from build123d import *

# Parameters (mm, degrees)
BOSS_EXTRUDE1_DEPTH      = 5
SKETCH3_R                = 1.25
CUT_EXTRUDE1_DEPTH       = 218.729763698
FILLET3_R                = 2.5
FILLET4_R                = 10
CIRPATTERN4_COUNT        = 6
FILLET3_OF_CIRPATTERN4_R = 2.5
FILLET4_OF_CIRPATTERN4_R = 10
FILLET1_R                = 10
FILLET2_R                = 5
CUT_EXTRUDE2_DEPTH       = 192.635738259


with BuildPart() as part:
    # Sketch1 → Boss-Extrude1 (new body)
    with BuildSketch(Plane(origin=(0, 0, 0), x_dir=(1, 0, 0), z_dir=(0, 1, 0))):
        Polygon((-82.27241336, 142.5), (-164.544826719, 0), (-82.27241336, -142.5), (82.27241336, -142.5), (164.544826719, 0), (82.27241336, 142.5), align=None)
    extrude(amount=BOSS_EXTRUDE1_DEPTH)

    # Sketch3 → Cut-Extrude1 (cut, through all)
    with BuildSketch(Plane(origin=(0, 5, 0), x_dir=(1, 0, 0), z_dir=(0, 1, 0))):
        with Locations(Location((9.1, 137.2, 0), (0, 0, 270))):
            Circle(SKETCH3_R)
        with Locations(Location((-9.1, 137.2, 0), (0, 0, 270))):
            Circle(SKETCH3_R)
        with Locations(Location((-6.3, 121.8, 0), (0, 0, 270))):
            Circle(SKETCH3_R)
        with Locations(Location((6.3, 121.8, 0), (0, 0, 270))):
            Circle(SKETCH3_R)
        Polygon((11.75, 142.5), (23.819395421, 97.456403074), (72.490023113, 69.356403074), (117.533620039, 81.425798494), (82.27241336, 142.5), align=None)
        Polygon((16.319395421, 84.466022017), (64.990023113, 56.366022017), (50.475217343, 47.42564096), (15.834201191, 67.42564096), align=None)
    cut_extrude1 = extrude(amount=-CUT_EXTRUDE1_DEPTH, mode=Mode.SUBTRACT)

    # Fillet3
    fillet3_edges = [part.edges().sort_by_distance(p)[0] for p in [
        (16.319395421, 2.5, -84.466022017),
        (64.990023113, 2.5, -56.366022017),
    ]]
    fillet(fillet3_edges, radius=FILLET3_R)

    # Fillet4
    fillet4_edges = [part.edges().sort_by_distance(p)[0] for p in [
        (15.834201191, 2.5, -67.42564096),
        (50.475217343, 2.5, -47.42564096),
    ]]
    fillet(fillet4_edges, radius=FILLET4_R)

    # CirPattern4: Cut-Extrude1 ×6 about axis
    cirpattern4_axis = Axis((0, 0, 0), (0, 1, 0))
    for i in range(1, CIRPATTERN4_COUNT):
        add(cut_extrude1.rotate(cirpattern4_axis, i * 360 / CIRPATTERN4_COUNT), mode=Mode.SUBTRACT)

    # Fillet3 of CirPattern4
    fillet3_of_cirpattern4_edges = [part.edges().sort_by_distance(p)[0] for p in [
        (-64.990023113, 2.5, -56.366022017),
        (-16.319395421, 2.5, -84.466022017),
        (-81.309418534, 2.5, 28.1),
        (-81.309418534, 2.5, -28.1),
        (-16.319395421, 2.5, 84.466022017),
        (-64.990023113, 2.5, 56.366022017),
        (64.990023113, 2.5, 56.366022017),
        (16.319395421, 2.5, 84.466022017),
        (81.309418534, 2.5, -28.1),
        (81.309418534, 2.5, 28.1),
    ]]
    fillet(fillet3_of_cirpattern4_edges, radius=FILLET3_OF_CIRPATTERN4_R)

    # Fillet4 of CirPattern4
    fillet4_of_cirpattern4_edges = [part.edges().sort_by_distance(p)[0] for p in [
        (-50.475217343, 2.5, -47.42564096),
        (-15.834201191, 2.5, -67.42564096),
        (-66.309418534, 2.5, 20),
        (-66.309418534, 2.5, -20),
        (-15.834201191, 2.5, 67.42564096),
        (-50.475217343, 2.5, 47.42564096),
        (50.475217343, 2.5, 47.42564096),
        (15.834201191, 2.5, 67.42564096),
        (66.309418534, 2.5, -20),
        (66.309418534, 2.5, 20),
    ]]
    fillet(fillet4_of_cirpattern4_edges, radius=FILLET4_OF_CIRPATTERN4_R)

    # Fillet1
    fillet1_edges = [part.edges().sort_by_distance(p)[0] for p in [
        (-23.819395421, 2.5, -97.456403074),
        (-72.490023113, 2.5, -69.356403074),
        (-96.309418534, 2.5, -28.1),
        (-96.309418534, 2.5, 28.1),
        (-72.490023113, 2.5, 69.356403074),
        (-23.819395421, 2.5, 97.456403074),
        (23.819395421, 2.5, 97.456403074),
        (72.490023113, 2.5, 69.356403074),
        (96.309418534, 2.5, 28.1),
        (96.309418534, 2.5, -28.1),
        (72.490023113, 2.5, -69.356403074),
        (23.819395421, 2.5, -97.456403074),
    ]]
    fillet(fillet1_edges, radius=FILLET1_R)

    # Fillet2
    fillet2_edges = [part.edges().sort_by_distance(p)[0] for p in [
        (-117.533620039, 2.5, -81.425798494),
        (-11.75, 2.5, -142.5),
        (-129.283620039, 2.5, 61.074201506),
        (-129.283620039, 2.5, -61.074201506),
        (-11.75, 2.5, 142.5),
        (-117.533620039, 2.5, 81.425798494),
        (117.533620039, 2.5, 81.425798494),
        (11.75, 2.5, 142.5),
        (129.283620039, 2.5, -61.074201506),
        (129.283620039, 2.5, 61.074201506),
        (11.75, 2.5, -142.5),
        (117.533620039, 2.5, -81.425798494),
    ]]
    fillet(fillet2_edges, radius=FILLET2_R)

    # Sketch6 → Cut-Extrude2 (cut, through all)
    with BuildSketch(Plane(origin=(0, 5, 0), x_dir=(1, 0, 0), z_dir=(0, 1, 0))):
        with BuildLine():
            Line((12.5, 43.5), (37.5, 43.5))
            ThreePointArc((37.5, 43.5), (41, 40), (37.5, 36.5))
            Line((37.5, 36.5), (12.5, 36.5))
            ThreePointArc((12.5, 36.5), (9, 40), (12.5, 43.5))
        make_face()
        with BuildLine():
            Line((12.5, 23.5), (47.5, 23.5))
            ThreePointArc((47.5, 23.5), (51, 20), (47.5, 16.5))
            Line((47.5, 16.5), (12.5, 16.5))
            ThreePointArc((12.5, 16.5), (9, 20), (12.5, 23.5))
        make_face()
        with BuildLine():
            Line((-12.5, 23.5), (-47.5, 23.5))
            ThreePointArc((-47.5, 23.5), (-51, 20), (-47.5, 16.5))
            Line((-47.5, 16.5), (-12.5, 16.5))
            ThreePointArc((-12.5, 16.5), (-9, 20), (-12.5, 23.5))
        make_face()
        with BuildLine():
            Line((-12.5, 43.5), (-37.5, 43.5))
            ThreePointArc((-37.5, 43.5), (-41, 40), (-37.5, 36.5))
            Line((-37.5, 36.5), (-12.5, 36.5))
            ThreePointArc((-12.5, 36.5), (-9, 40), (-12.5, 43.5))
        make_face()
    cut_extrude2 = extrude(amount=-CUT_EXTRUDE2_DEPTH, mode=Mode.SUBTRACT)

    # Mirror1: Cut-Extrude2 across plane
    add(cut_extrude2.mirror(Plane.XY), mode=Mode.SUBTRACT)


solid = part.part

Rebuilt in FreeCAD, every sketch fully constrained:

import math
import FreeCAD as App
import Part
import Sketcher
from FreeCAD import Vector
Q = App.Units.Quantity


def edges_at(feature, points):
    """Names of the edges that pass closest to the given points."""
    edges = feature.Shape.Edges
    near = lambda p: min(range(len(edges)), key=lambda i: edges[i].distToShape(Part.Vertex(*p))[0])
    return sorted({f"Edge{near(p) + 1}" for p in points})

doc = App.newDocument("Part")
body = doc.addObject("PartDesign::Body", "Body")

# Sketch on XZ plane
sketch1 = body.newObject("Sketcher::SketchObject", "Sketch")
sketch1.AttachmentSupport = (doc.getObject("XZ_Plane"), [""])
sketch1.MapMode = "FlatFace"
sketch1.addGeometry([
    Part.LineSegment(Vector(-82.272413, -142.5, 0), Vector(-164.544827, 0, 0)),  # 0
    Part.LineSegment(Vector(-164.544827, 0, 0), Vector(-82.272413, 142.5, 0)),  # 1
    Part.LineSegment(Vector(-82.272413, 142.5, 0), Vector(82.272413, 142.5, 0)),  # 2
    Part.LineSegment(Vector(82.272413, 142.5, 0), Vector(164.544827, 0, 0)),  # 3
    Part.LineSegment(Vector(164.544827, 0, 0), Vector(82.272413, -142.5, 0)),  # 4
    Part.LineSegment(Vector(82.272413, -142.5, 0), Vector(-82.272413, -142.5, 0)),  # 5
], False)
sketch1.addConstraint([
    Sketcher.Constraint("Coincident", 0, 2, 1, 1),
    Sketcher.Constraint("Coincident", 1, 2, 2, 1),
    Sketcher.Constraint("Coincident", 2, 2, 3, 1),
    Sketcher.Constraint("Coincident", 3, 2, 4, 1),
    Sketcher.Constraint("Coincident", 4, 2, 5, 1),
    Sketcher.Constraint("Coincident", 5, 2, 0, 1),
    Sketcher.Constraint("Horizontal", 2),
    Sketcher.Constraint("Horizontal", 5),
    Sketcher.Constraint("Symmetric", 0, 2, 3, 2, -1, 1),
    Sketcher.Constraint("Symmetric", 1, 2, 4, 2, -1, 1),
    Sketcher.Constraint("PointOnObject", 0, 2, -1),
    Sketcher.Constraint("Parallel", 0, 3),
    Sketcher.Constraint("Vertical", 2, 2, 4, 2),
    Sketcher.Constraint("Angle", 0, Q("120 deg")),
    Sketcher.Constraint("DistanceY", 4, 2, 2, 2, 285.0),
    Sketcher.Constraint("DistanceX", 2, 1, 2, 2, 164.544827),
])
pad1 = body.newObject("PartDesign::Pad", "Pad")
pad1.Profile = sketch1
pad1.Length = 5
pad1.Reversed = True

# Sketch on XZ plane
sketch2 = body.newObject("Sketcher::SketchObject", "Sketch001")
sketch2.AttachmentSupport = (doc.getObject("XZ_Plane"), [""])
sketch2.MapMode = "FlatFace"
sketch2.AttachmentOffset = App.Placement(Vector(0, 0, -5), App.Rotation())
sketch2.addGeometry([
    Part.Circle(Vector(9.1, -137.2, 0), Vector(0, 0, 1), 1.25),  # 0
    Part.Circle(Vector(-9.1, -137.2, 0), Vector(0, 0, 1), 1.25),  # 1
    Part.Circle(Vector(-6.3, -121.8, 0), Vector(0, 0, 1), 1.25),  # 2
    Part.Circle(Vector(6.3, -121.8, 0), Vector(0, 0, 1), 1.25),  # 3
    Part.LineSegment(Vector(11.75, -142.5, 0), Vector(23.819395, -97.456403, 0)),  # 4
    Part.LineSegment(Vector(23.819395, -97.456403, 0), Vector(72.490023, -69.356403, 0)),  # 5
    Part.LineSegment(Vector(72.490023, -69.356403, 0), Vector(117.53362, -81.425798, 0)),  # 6
    Part.LineSegment(Vector(117.53362, -81.425798, 0), Vector(82.272413, -142.5, 0)),  # 7
    Part.LineSegment(Vector(82.272413, -142.5, 0), Vector(11.75, -142.5, 0)),  # 8
    Part.LineSegment(Vector(64.990023, -56.366022, 0), Vector(16.319395, -84.466022, 0)),  # 9
    Part.LineSegment(Vector(16.319395, -84.466022, 0), Vector(15.834201, -67.425641, 0)),  # 10
    Part.LineSegment(Vector(15.834201, -67.425641, 0), Vector(50.475217, -47.425641, 0)),  # 11
    Part.LineSegment(Vector(50.475217, -47.425641, 0), Vector(64.990023, -56.366022, 0)),  # 12
], False)
sketch2.addConstraint([
    Sketcher.Constraint("Coincident", 4, 2, 5, 1),
    Sketcher.Constraint("Coincident", 5, 2, 6, 1),
    Sketcher.Constraint("Coincident", 6, 2, 7, 1),
    Sketcher.Constraint("Coincident", 7, 2, 8, 1),
    Sketcher.Constraint("Coincident", 8, 2, 4, 1),
    Sketcher.Constraint("Coincident", 9, 2, 10, 1),
    Sketcher.Constraint("Coincident", 10, 2, 11, 1),
    Sketcher.Constraint("Coincident", 11, 2, 12, 1),
    Sketcher.Constraint("Coincident", 12, 2, 9, 1),
    Sketcher.Constraint("Horizontal", 8),
    Sketcher.Constraint("Equal", 0, 1),
    Sketcher.Constraint("Equal", 1, 2),
    Sketcher.Constraint("Equal", 2, 3),
    Sketcher.Constraint("Symmetric", 0, 3, 1, 3, -2),
    Sketcher.Constraint("Symmetric", 2, 3, 3, 3, -2),
    Sketcher.Constraint("Perpendicular", 4, 6),
    Sketcher.Constraint("Parallel", 5, 9),
    Sketcher.Constraint("Parallel", 9, 11),
    Sketcher.Constraint("Equal", 4, 6),
    Sketcher.Constraint("Equal", 5, 9),
    Sketcher.Constraint("Equal", 10, 12),
    Sketcher.Constraint("Diameter", 0, 2.5),
    Sketcher.Constraint("Angle", 4, Q("75 deg")),
    Sketcher.Constraint("Angle", 5, Q("30 deg")),
    Sketcher.Constraint("Angle", 7, Q("-120 deg")),
    Sketcher.Constraint("Distance", 11, 40.0),
    Sketcher.Constraint("Distance", 5, 56.2),
    Sketcher.Constraint("DistanceX", -1, 1, 0, 3, 9.1),
    Sketcher.Constraint("DistanceY", 0, 3, -1, 1, 137.2),
    Sketcher.Constraint("DistanceX", 2, 3, -1, 1, 6.3),
    Sketcher.Constraint("DistanceY", 2, 3, -1, 1, 121.8),
    Sketcher.Constraint("DistanceY", 7, 2, -1, 1, 142.5),
    Sketcher.Constraint("DistanceX", 9, 2, 4, 2, 7.5),
    Sketcher.Constraint("DistanceX", -1, 1, 8, 2, 11.75),
    Sketcher.Constraint("DistanceY", 6, 2, -1, 1, 81.425798),
    Sketcher.Constraint("DistanceX", -1, 1, 10, 2, 15.834201),
    Sketcher.Constraint("DistanceY", 10, 2, -1, 1, 67.425641),
])
pocket1 = body.newObject("PartDesign::Pocket", "Pocket")
pocket1.Profile = sketch2
pocket1.Type = "ThroughAll"
pocket1.Reversed = True
doc.recompute()

fillet = body.newObject("PartDesign::Fillet", "Fillet")
fillet.Base = (pocket1, edges_at(pocket1, [(16.319, 2.5, -84.466), (64.99, 2.5, -56.366)]))
fillet.Radius = 2.5
doc.recompute()

fillet2 = body.newObject("PartDesign::Fillet", "Fillet001")
fillet2.Base = (fillet, edges_at(fillet, [(15.834, 2.5, -67.426), (50.475, 2.5, -47.426)]))
fillet2.Radius = 10
doc.recompute()

polarpattern = body.newObject("PartDesign::PolarPattern", "PolarPattern")
polarpattern.Originals = [pocket1]
polarpattern.Axis = (doc.getObject("Y_Axis"), [""])
polarpattern.Angle = 360
polarpattern.Occurrences = 6
body.Tip = polarpattern
doc.recompute()

fillet3 = body.newObject("PartDesign::Fillet", "Fillet002")
fillet3.Base = (polarpattern, edges_at(polarpattern, [
    (-64.99, 2.5, -56.366),
    (-16.319, 2.5, -84.466),
    (-81.309, 2.5, 28.1),
    (-81.309, 2.5, -28.1),
    (-16.319, 2.5, 84.466),
    (-64.99, 2.5, 56.366),
    (64.99, 2.5, 56.366),
    (16.319, 2.5, 84.466),
    (81.309, 2.5, -28.1),
    (81.309, 2.5, 28.1),
]))
fillet3.Radius = 2.5
doc.recompute()

fillet4 = body.newObject("PartDesign::Fillet", "Fillet003")
fillet4.Base = (fillet3, edges_at(fillet3, [
    (-50.475, 2.5, -47.426),
    (-15.834, 2.5, -67.426),
    (-66.309, 2.5, 20),
    (-66.309, 2.5, -20),
    (-15.834, 2.5, 67.426),
    (-50.475, 2.5, 47.426),
    (50.475, 2.5, 47.426),
    (15.834, 2.5, 67.426),
    (66.309, 2.5, -20),
    (66.309, 2.5, 20),
]))
fillet4.Radius = 10
doc.recompute()

fillet5 = body.newObject("PartDesign::Fillet", "Fillet004")
fillet5.Base = (fillet4, edges_at(fillet4, [
    (-23.819, 2.5, -97.456),
    (-72.49, 2.5, -69.356),
    (-96.309, 2.5, -28.1),
    (-96.309, 2.5, 28.1),
    (-72.49, 2.5, 69.356),
    (-23.819, 2.5, 97.456),
    (23.819, 2.5, 97.456),
    (72.49, 2.5, 69.356),
    (96.309, 2.5, 28.1),
    (96.309, 2.5, -28.1),
    (72.49, 2.5, -69.356),
    (23.819, 2.5, -97.456),
]))
fillet5.Radius = 10
doc.recompute()

fillet6 = body.newObject("PartDesign::Fillet", "Fillet005")
fillet6.Base = (fillet5, edges_at(fillet5, [
    (-117.534, 2.5, -81.426),
    (-11.75, 2.5, -142.5),
    (-129.284, 2.5, 61.074),
    (-129.284, 2.5, -61.074),
    (-11.75, 2.5, 142.5),
    (-117.534, 2.5, 81.426),
    (117.534, 2.5, 81.426),
    (11.75, 2.5, 142.5),
    (129.284, 2.5, -61.074),
    (129.284, 2.5, 61.074),
    (11.75, 2.5, -142.5),
    (117.534, 2.5, -81.426),
]))
fillet6.Radius = 5

# Sketch on XZ plane
sketch3 = body.newObject("Sketcher::SketchObject", "Sketch002")
sketch3.AttachmentSupport = (doc.getObject("XZ_Plane"), [""])
sketch3.MapMode = "FlatFace"
sketch3.AttachmentOffset = App.Placement(Vector(0, 0, -5), App.Rotation())
sketch3.addGeometry([
    Part.LineSegment(Vector(37.5, -43.5, 0), Vector(12.5, -43.5, 0)),  # 0
    Part.ArcOfCircle(Part.Circle(Vector(12.5, -40, 0), Vector(0, 0, 1), 3.5), math.radians(90), math.radians(270)),  # 1
    Part.LineSegment(Vector(12.5, -36.5, 0), Vector(37.5, -36.5, 0)),  # 2
    Part.ArcOfCircle(Part.Circle(Vector(37.5, -40, 0), Vector(0, 0, 1), 3.5), math.radians(-90), math.radians(90)),  # 3
    Part.LineSegment(Vector(47.5, -23.5, 0), Vector(12.5, -23.5, 0)),  # 4
    Part.ArcOfCircle(Part.Circle(Vector(12.5, -20, 0), Vector(0, 0, 1), 3.5), math.radians(90), math.radians(270)),  # 5
    Part.LineSegment(Vector(12.5, -16.5, 0), Vector(47.5, -16.5, 0)),  # 6
    Part.ArcOfCircle(Part.Circle(Vector(47.5, -20, 0), Vector(0, 0, 1), 3.5), math.radians(-90), math.radians(90)),  # 7
    Part.LineSegment(Vector(-12.5, -23.5, 0), Vector(-47.5, -23.5, 0)),  # 8
    Part.ArcOfCircle(Part.Circle(Vector(-47.5, -20, 0), Vector(0, 0, 1), 3.5), math.radians(90), math.radians(270)),  # 9
    Part.LineSegment(Vector(-47.5, -16.5, 0), Vector(-12.5, -16.5, 0)),  # 10
    Part.ArcOfCircle(Part.Circle(Vector(-12.5, -20, 0), Vector(0, 0, 1), 3.5), math.radians(-90), math.radians(90)),  # 11
    Part.LineSegment(Vector(-12.5, -43.5, 0), Vector(-37.5, -43.5, 0)),  # 12
    Part.ArcOfCircle(Part.Circle(Vector(-37.5, -40, 0), Vector(0, 0, 1), 3.5), math.radians(90), math.radians(270)),  # 13
    Part.LineSegment(Vector(-37.5, -36.5, 0), Vector(-12.5, -36.5, 0)),  # 14
    Part.ArcOfCircle(Part.Circle(Vector(-12.5, -40, 0), Vector(0, 0, 1), 3.5), math.radians(-90), math.radians(90)),  # 15
], False)
sketch3.addConstraint([
    Sketcher.Constraint("Tangent", 0, 2, 1, 2),
    Sketcher.Constraint("Tangent", 1, 1, 2, 1),
    Sketcher.Constraint("Tangent", 2, 2, 3, 2),
    Sketcher.Constraint("Tangent", 3, 1, 0, 1),
    Sketcher.Constraint("Tangent", 4, 2, 5, 2),
    Sketcher.Constraint("Tangent", 5, 1, 6, 1),
    Sketcher.Constraint("Tangent", 6, 2, 7, 2),
    Sketcher.Constraint("Tangent", 7, 1, 4, 1),
    Sketcher.Constraint("Tangent", 8, 2, 9, 2),
    Sketcher.Constraint("Tangent", 9, 1, 10, 1),
    Sketcher.Constraint("Tangent", 10, 2, 11, 2),
    Sketcher.Constraint("Tangent", 11, 1, 8, 1),
    Sketcher.Constraint("Tangent", 12, 2, 13, 2),
    Sketcher.Constraint("Tangent", 13, 1, 14, 1),
    Sketcher.Constraint("Tangent", 14, 2, 15, 2),
    Sketcher.Constraint("Tangent", 15, 1, 12, 1),
    Sketcher.Constraint("Horizontal", 0),
    Sketcher.Constraint("Horizontal", 2),
    Sketcher.Constraint("Horizontal", 4),
    Sketcher.Constraint("Horizontal", 6),
    Sketcher.Constraint("Horizontal", 8),
    Sketcher.Constraint("Horizontal", 10),
    Sketcher.Constraint("Horizontal", 12),
    Sketcher.Constraint("Horizontal", 14),
    Sketcher.Constraint("Equal", 3, 5),
    Sketcher.Constraint("Equal", 7, 9),
    Sketcher.Constraint("Equal", 11, 13),
    Sketcher.Constraint("Symmetric", 7, 3, 9, 3, -2),
    Sketcher.Constraint("Symmetric", 3, 3, 13, 3, -2),
    Sketcher.Constraint("Vertical", 1, 3, 5, 3),
    Sketcher.Constraint("Vertical", 11, 3, 15, 3),
    Sketcher.Constraint("Equal", 6, 8),
    Sketcher.Constraint("Radius", 1, 3.5),
    Sketcher.Constraint("DistanceX", 0, 2, 0, 1, 25.0),
    Sketcher.Constraint("DistanceX", 4, 2, 4, 1, 35.0),
    Sketcher.Constraint("DistanceY", 1, 3, -1, 1, 40.0),
    Sketcher.Constraint("DistanceY", 5, 3, -1, 1, 20.0),
    Sketcher.Constraint("DistanceX", 9, 3, 5, 3, 60.0),
])
pocket2 = body.newObject("PartDesign::Pocket", "Pocket001")
pocket2.Profile = sketch3
pocket2.Type = "ThroughAll"
pocket2.Reversed = True
doc.recompute()

mirrored = body.newObject("PartDesign::Mirrored", "Mirrored")
mirrored.Originals = [pocket2]
mirrored.MirrorPlane = (doc.getObject("XY_Plane"), [""])
body.Tip = mirrored

doc.recompute()
